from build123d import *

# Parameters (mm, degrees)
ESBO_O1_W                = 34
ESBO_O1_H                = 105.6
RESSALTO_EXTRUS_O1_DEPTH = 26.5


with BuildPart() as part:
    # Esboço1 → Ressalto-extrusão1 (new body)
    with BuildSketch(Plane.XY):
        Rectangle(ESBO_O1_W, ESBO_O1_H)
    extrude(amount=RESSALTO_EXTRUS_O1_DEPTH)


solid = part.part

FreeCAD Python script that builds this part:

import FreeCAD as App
import Part
import Sketcher

doc = App.newDocument("Part")
body = doc.addObject("PartDesign::Body", "Body")

# Sketch on XY plane
sketch1 = body.newObject("Sketcher::SketchObject", "Sketch")
sketch1.AttachmentSupport = (doc.getObject("XY_Plane"), [""])
sketch1.MapMode = "FlatFace"
sketch1.addGeometry(Part.LineSegment(App.Vector(-17, 53, 0), App.Vector(-17, -53, 0)), False)
sketch1.addGeometry(Part.LineSegment(App.Vector(-17, -53, 0), App.Vector(17, -53, 0)), False)
sketch1.addGeometry(Part.LineSegment(App.Vector(17, -53, 0), App.Vector(17, 53, 0)), False)
sketch1.addGeometry(Part.LineSegment(App.Vector(17, 53, 0), App.Vector(-17, 53, 0)), False)
sketch1.addConstraint(Sketcher.Constraint("Coincident", 0, 2, 1, 1))
sketch1.addConstraint(Sketcher.Constraint("Coincident", 1, 2, 2, 1))
sketch1.addConstraint(Sketcher.Constraint("Coincident", 2, 2, 3, 1))
sketch1.addConstraint(Sketcher.Constraint("Coincident", 3, 2, 0, 1))
sketch1.addConstraint(Sketcher.Constraint("Vertical", 0))
sketch1.addConstraint(Sketcher.Constraint("Horizontal", 1))
sketch1.addConstraint(Sketcher.Constraint("Vertical", 2))
sketch1.addConstraint(Sketcher.Constraint("Horizontal", 3))
sketch1.addConstraint(Sketcher.Constraint("Symmetric", 0, 2, 2, 2, -1, 1))
sketch1.addConstraint(Sketcher.Constraint("DistanceX", 1, 1, 1, 2, 34.0))
sketch1.addConstraint(Sketcher.Constraint("DistanceY", 0, 2, 0, 1, 105.6))
pad1 = body.newObject("PartDesign::Pad", "Pad")
pad1.Profile = sketch1
pad1.Length = 26.5

doc.recompute()
